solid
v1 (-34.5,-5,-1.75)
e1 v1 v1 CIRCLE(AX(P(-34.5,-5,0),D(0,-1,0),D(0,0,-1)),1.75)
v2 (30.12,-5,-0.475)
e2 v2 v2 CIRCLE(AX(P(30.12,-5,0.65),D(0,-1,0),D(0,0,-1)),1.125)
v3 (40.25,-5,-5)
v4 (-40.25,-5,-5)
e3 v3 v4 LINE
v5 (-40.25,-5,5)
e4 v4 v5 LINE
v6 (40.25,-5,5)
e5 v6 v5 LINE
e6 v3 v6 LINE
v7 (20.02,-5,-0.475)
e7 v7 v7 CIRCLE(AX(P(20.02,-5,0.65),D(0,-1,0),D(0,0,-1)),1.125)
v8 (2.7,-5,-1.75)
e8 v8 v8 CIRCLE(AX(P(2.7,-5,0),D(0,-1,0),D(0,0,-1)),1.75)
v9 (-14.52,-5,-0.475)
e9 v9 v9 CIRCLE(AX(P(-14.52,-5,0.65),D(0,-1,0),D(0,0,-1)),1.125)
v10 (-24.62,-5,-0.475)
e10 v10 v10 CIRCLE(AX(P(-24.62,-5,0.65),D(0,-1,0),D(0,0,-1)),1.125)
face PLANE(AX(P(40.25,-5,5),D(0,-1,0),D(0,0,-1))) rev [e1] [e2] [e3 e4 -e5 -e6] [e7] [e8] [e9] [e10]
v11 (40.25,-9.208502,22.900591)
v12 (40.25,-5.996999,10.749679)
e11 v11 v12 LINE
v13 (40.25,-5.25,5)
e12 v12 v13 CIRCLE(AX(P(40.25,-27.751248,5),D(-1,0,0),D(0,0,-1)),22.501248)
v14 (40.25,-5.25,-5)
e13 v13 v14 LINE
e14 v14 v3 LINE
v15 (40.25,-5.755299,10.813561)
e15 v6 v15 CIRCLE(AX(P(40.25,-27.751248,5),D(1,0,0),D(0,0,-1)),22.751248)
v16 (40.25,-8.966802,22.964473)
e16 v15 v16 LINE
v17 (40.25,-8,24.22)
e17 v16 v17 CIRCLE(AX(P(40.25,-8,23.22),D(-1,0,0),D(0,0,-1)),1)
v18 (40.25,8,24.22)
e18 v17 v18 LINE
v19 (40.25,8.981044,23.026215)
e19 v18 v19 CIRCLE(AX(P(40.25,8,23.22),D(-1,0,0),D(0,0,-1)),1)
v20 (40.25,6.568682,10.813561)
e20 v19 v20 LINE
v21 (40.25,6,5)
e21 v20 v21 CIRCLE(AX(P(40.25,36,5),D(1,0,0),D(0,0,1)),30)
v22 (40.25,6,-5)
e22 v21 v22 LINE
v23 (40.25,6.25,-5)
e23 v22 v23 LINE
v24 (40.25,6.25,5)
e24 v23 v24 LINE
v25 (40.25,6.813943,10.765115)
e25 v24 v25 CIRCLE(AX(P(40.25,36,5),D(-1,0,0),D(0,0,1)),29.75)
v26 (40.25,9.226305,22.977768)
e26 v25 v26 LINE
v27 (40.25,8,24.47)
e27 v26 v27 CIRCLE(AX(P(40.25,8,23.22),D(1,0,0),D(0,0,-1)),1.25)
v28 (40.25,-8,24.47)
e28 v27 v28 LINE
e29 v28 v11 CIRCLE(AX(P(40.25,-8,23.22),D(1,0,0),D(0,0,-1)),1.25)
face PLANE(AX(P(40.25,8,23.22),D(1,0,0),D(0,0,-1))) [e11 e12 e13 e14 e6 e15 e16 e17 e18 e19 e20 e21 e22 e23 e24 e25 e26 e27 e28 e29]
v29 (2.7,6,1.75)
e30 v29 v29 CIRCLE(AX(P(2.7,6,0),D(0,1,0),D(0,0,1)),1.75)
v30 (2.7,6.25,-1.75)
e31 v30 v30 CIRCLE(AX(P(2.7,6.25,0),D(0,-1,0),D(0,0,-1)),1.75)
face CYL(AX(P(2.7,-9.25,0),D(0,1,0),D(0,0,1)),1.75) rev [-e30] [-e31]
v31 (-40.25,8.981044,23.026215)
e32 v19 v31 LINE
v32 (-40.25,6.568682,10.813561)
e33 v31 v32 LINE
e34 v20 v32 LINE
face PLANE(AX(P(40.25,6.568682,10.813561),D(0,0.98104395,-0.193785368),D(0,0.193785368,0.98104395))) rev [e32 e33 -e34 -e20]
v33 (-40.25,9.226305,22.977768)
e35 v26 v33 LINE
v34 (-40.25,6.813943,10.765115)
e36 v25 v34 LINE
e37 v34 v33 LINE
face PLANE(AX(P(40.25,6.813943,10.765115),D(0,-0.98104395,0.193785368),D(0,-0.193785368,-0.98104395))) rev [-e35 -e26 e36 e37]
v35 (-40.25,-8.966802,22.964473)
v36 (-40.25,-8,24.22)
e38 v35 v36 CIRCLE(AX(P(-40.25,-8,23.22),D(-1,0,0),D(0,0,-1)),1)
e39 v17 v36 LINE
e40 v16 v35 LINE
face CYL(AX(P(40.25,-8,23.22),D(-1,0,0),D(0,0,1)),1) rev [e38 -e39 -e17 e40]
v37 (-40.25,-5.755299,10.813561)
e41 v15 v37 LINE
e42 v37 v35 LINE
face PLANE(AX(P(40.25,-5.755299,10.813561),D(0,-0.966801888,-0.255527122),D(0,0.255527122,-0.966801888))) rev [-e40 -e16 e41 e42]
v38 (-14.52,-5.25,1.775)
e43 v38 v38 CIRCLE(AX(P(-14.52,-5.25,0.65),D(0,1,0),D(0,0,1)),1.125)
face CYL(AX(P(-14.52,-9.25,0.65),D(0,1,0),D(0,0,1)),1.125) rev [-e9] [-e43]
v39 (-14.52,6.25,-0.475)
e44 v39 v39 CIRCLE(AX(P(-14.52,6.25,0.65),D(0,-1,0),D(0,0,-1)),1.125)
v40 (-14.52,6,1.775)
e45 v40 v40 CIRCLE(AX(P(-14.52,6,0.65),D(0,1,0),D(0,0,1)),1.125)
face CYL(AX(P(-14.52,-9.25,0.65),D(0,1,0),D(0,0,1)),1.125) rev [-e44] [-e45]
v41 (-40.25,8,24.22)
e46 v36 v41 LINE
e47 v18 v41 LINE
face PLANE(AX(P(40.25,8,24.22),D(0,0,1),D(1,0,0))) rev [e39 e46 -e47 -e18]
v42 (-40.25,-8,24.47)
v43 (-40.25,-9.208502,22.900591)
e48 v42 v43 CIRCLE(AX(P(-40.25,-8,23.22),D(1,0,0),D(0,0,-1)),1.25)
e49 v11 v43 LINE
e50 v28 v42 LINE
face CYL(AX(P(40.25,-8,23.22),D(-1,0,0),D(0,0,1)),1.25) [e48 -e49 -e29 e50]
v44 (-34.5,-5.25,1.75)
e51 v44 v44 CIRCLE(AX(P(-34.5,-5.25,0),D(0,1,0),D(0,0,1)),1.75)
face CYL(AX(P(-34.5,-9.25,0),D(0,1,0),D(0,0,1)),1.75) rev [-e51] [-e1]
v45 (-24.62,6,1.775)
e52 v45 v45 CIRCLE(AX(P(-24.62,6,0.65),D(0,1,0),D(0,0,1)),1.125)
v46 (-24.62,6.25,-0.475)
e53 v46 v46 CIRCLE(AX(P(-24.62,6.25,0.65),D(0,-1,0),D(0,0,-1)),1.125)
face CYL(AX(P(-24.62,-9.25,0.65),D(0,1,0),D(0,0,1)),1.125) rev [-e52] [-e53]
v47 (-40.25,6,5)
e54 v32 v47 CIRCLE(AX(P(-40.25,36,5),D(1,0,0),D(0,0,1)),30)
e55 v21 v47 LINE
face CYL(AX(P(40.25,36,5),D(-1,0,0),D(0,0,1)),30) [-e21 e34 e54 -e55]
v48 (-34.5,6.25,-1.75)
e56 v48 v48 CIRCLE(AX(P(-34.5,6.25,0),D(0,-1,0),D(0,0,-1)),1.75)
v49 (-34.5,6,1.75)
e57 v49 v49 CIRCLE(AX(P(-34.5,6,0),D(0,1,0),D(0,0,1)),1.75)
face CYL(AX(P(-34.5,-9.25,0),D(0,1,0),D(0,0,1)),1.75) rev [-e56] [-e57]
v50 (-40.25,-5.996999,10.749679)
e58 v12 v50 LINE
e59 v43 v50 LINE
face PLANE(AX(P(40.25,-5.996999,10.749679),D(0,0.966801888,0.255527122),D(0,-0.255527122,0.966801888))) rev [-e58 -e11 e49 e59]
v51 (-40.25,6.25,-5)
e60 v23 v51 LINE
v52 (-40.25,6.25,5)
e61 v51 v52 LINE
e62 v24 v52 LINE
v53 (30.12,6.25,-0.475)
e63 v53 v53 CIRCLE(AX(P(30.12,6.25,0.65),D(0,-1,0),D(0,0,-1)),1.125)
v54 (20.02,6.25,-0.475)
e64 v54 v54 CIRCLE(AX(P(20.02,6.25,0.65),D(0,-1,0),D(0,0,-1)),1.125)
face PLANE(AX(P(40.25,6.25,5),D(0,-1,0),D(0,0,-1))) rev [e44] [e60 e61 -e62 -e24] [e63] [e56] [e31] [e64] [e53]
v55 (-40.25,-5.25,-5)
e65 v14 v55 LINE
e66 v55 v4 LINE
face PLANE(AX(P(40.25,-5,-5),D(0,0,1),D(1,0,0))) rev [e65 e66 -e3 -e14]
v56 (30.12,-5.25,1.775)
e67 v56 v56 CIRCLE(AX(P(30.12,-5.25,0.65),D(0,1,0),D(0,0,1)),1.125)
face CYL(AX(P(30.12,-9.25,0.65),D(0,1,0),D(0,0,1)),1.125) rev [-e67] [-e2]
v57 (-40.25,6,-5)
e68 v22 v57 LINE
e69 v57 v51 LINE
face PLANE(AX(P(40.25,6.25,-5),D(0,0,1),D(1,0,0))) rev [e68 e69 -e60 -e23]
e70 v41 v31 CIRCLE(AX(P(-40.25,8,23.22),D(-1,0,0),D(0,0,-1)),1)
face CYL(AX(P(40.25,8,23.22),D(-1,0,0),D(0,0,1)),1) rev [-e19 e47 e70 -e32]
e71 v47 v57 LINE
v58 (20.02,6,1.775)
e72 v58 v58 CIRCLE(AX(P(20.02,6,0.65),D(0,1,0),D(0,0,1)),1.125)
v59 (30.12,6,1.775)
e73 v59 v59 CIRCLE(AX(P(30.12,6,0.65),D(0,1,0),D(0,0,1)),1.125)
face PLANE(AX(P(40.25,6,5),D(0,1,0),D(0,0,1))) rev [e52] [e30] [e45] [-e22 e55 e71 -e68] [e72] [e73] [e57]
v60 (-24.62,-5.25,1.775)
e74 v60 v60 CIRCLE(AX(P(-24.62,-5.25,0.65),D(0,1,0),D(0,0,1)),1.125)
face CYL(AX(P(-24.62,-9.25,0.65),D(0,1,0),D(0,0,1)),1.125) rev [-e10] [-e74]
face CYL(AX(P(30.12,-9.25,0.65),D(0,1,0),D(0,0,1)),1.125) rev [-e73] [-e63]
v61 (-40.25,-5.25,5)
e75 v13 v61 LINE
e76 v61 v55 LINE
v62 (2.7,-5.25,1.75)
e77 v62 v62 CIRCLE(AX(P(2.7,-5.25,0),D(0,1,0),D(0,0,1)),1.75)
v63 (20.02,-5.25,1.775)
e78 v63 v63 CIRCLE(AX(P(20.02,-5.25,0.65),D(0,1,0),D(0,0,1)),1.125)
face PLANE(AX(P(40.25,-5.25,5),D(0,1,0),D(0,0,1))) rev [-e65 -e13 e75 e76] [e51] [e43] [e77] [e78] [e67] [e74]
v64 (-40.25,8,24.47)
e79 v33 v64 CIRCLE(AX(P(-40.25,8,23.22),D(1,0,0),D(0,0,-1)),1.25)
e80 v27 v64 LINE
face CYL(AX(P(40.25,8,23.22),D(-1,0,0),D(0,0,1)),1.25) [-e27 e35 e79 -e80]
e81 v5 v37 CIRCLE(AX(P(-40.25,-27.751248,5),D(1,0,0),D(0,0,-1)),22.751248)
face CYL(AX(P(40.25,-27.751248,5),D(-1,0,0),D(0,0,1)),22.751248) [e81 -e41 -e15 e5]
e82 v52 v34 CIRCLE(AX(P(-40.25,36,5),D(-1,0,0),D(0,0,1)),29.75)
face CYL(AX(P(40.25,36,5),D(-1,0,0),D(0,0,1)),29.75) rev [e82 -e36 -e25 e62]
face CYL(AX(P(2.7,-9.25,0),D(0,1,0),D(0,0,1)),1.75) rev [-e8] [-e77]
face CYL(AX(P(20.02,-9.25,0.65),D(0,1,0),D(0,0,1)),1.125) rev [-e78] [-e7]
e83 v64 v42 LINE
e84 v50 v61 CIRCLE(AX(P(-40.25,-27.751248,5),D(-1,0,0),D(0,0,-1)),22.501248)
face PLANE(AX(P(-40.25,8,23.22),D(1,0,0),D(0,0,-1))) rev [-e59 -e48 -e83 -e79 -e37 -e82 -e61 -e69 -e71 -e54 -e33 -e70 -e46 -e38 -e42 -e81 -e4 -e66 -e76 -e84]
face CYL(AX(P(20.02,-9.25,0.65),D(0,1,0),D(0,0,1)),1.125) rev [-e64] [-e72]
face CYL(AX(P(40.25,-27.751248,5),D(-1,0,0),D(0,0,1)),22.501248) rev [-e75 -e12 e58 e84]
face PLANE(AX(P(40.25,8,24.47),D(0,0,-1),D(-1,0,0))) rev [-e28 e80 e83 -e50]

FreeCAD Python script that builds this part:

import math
import FreeCAD as App
import Part
import Sketcher
Q = App.Units.Quantity

doc = App.newDocument("Part")
body = doc.addObject("PartDesign::Body", "Body")

sketch1 = body.newObject("Sketcher::SketchObject", "Sketch")
sketch1.AttachmentSupport = (doc.getObject("YZ_Plane"), [""])
sketch1.MapMode = "FlatFace"
sketch1.addGeometry(Part.LineSegment(App.Vector(-8, 24.22, 0), App.Vector(8, 24.22, 0)), False)
sketch1.addGeometry(Part.ArcOfCircle(Part.Circle(App.Vector(8, 23.22, 0), App.Vector(0, 0, 1), 1), math.radians(-11), math.radians(90)), False)
sketch1.addGeometry(Part.LineSegment(App.Vector(8.98, 23.03, 0), App.Vector(6.57, 10.81, 0)), False)
sketch1.addGeometry(Part.ArcOfCircle(Part.Circle(App.Vector(36, 5, 0), App.Vector(0, 0, 1), 30), math.radians(168.83), math.radians(180)), False)
sketch1.addGeometry(Part.LineSegment(App.Vector(6, 5, 0), App.Vector(6, -5, 0)), False)
sketch1.addGeometry(Part.LineSegment(App.Vector(6, -5, 0), App.Vector(6.25, -5, 0)), False)
sketch1.addGeometry(Part.LineSegment(App.Vector(6.25, -5, 0), App.Vector(6.25, 5, 0)), False)
sketch1.addGeometry(Part.ArcOfCircle(Part.Circle(App.Vector(36, 5, 0), App.Vector(0, 0, 1), 29.75), math.radians(168.83), math.radians(180)), False)
sketch1.addGeometry(Part.LineSegment(App.Vector(6.81, 10.77, 0), App.Vector(9.23, 22.98, 0)), False)
sketch1.addGeometry(Part.ArcOfCircle(Part.Circle(App.Vector(8, 23.22, 0), App.Vector(0, 0, 1), 1.25), math.radians(-11), math.radians(90)), False)
sketch1.addGeometry(Part.LineSegment(App.Vector(8, 24.47, 0), App.Vector(-8, 24.47, 0)), False)
sketch1.addGeometry(Part.ArcOfCircle(Part.Circle(App.Vector(-8, 23.22, 0), App.Vector(0, 0, 1), 1.25), math.radians(90), math.radians(195)), False)
sketch1.addGeometry(Part.LineSegment(App.Vector(-9.21, 22.9, 0), App.Vector(-6, 10.75, 0)), False)
sketch1.addGeometry(Part.ArcOfCircle(Part.Circle(App.Vector(-27.75, 5, 0), App.Vector(0, 0, 1), 22.5), math.radians(0), math.radians(14.8)), False)
sketch1.addGeometry(Part.LineSegment(App.Vector(-5.25, 5, 0), App.Vector(-5.25, -5, 0)), False)
sketch1.addGeometry(Part.LineSegment(App.Vector(-5.25, -5, 0), App.Vector(-5, -5, 0)), False)
sketch1.addGeometry(Part.LineSegment(App.Vector(-5, -5, 0), App.Vector(-5, 5, 0)), False)
sketch1.addGeometry(Part.ArcOfCircle(Part.Circle(App.Vector(-27.75, 5, 0), App.Vector(0, 0, 1), 22.75), math.radians(0), math.radians(14.8)), False)
sketch1.addGeometry(Part.LineSegment(App.Vector(-5.76, 10.81, 0), App.Vector(-8.97, 22.96, 0)), False)
sketch1.addGeometry(Part.ArcOfCircle(Part.Circle(App.Vector(-8, 23.22, 0), App.Vector(0, 0, 1), 1), math.radians(90), math.radians(195)), False)
sketch1.addConstraint(Sketcher.Constraint("Tangent", 0, 2, 1, 2))
sketch1.addConstraint(Sketcher.Constraint("Tangent", 1, 1, 2, 1))
sketch1.addConstraint(Sketcher.Constraint("Tangent", 2, 2, 3, 1))
sketch1.addConstraint(Sketcher.Constraint("Tangent", 3, 2, 4, 1))
sketch1.addConstraint(Sketcher.Constraint("Coincident", 4, 2, 5, 1))
sketch1.addConstraint(Sketcher.Constraint("Coincident", 5, 2, 6, 1))
sketch1.addConstraint(Sketcher.Constraint("Tangent", 6, 2, 7, 2))
sketch1.addConstraint(Sketcher.Constraint("Tangent", 7, 1, 8, 1))
sketch1.addConstraint(Sketcher.Constraint("Tangent", 8, 2, 9, 1))
sketch1.addConstraint(Sketcher.Constraint("Tangent", 9, 2, 10, 1))
sketch1.addConstraint(Sketcher.Constraint("Tangent", 10, 2, 11, 1))
sketch1.addConstraint(Sketcher.Constraint("Tangent", 11, 2, 12, 1))
sketch1.addConstraint(Sketcher.Constraint("Tangent", 12, 2, 13, 2))
sketch1.addConstraint(Sketcher.Constraint("Tangent", 13, 1, 14, 1))
sketch1.addConstraint(Sketcher.Constraint("Coincident", 14, 2, 15, 1))
sketch1.addConstraint(Sketcher.Constraint("Coincident", 15, 2, 16, 1))
sketch1.addConstraint(Sketcher.Constraint("Tangent", 16, 2, 17, 1))
sketch1.addConstraint(Sketcher.Constraint("Tangent", 17, 2, 18, 1))
sketch1.addConstraint(Sketcher.Constraint("Tangent", 18, 2, 19, 2))
sketch1.addConstraint(Sketcher.Constraint("Tangent", 19, 1, 0, 1))
sketch1.addConstraint(Sketcher.Constraint("Horizontal", 0))
sketch1.addConstraint(Sketcher.Constraint("Vertical", 4))
sketch1.addConstraint(Sketcher.Constraint("Horizontal", 5))
sketch1.addConstraint(Sketcher.Constraint("Vertical", 6))
sketch1.addConstraint(Sketcher.Constraint("Horizontal", 10))
sketch1.addConstraint(Sketcher.Constraint("Vertical", 14))
sketch1.addConstraint(Sketcher.Constraint("Horizontal", 15))
sketch1.addConstraint(Sketcher.Constraint("Vertical", 16))
sketch1.addConstraint(Sketcher.Constraint("Coincident", 7, 3, 3, 3))
sketch1.addConstraint(Sketcher.Constraint("Coincident", 9, 3, 1, 3))
sketch1.addConstraint(Sketcher.Constraint("Coincident", 17, 3, 13, 3))
sketch1.addConstraint(Sketcher.Constraint("Coincident", 19, 3, 11, 3))
sketch1.addConstraint(Sketcher.Constraint("Equal", 9, 11))
sketch1.addConstraint(Sketcher.Constraint("Parallel", 2, 8))
sketch1.addConstraint(Sketcher.Constraint("Parallel", 12, 18))
sketch1.addConstraint(Sketcher.Constraint("Horizontal", 7, 3, 13, 3))
sketch1.addConstraint(Sketcher.Constraint("Horizontal", 5, 2, 14, 2))
sketch1.addConstraint(Sketcher.Constraint("Horizontal", 2, 2, 17, 2))
sketch1.addConstraint(Sketcher.Constraint("Radius", 1, Q("1 mm")))
sketch1.addConstraint(Sketcher.Constraint("Radius", 3, Q("30 mm")))
sketch1.addConstraint(Sketcher.Constraint("DistanceX", 0, 1, 0, 2, Q("16 mm")))
sketch1.addConstraint(Sketcher.Constraint("DistanceY", 4, 2, 4, 1, Q("10 mm")))
sketch1.addConstraint(Sketcher.Constraint("Radius", 7, Q("29.75 mm")))
sketch1.addConstraint(Sketcher.Constraint("DistanceX", -1, 1, 1, 3, Q("8 mm")))
sketch1.addConstraint(Sketcher.Constraint("DistanceX", -1, 1, 3, 3, Q("36 mm")))
sketch1.addConstraint(Sketcher.Constraint("DistanceY", -1, 1, 3, 3, Q("5 mm")))
sketch1.addConstraint(Sketcher.Constraint("DistanceX", 15, 2, -1, 1, Q("5 mm")))
sketch1.addConstraint(Sketcher.Constraint("DistanceY", -1, 1, 1, 3, Q("23.22 mm")))
pad1 = body.newObject("PartDesign::Pad", "Pad")
pad1.Profile = sketch1
pad1.Length = 80.5
pad1.Midplane = True

sketch2 = body.newObject("Sketcher::SketchObject", "Sketch001")
sketch2.AttachmentSupport = (doc.getObject("XZ_Plane"), [""])
sketch2.MapMode = "FlatFace"
sketch2.addGeometry(Part.Circle(App.Vector(-34.5, 0, 0), App.Vector(0, 0, 1), 1.8), False)
sketch2.addGeometry(Part.Circle(App.Vector(-24.6, 0.7, 0), App.Vector(0, 0, 1), 1.1), False)
sketch2.addGeometry(Part.Circle(App.Vector(-14.5, 0.7, 0), App.Vector(0, 0, 1), 1.1), False)
sketch2.addGeometry(Part.Circle(App.Vector(2.7, 0, 0), App.Vector(0, 0, 1), 1.8), False)
sketch2.addGeometry(Part.Circle(App.Vector(20, 0.7, 0), App.Vector(0, 0, 1), 1.1), False)
sketch2.addGeometry(Part.Circle(App.Vector(30.1, 0.7, 0), App.Vector(0, 0, 1), 1.1), False)
sketch2.addConstraint(Sketcher.Constraint("Equal", 1, 2))
sketch2.addConstraint(Sketcher.Constraint("Equal", 0, 3))
sketch2.addConstraint(Sketcher.Constraint("Equal", 2, 4))
sketch2.addConstraint(Sketcher.Constraint("Equal", 4, 5))
sketch2.addConstraint(Sketcher.Constraint("PointOnObject", 0, 3, -1))
sketch2.addConstraint(Sketcher.Constraint("PointOnObject", 3, 3, -1))
sketch2.addConstraint(Sketcher.Constraint("Horizontal", 1, 3, 2, 3))
sketch2.addConstraint(Sketcher.Constraint("Horizontal", 2, 3, 4, 3))
sketch2.addConstraint(Sketcher.Constraint("Horizontal", 4, 3, 5, 3))
sketch2.addConstraint(Sketcher.Constraint("Diameter", 0, Q("3.5 mm")))
sketch2.addConstraint(Sketcher.Constraint("Diameter", 1, Q("2.25 mm")))
sketch2.addConstraint(Sketcher.Constraint("DistanceX", 0, 3, -1, 1, Q("34.5 mm")))
sketch2.addConstraint(Sketcher.Constraint("DistanceX", -1, 1, 3, 3, Q("2.7 mm")))
sketch2.addConstraint(Sketcher.Constraint("DistanceX", 1, 3, 2, 3, Q("10.1 mm")))
sketch2.addConstraint(Sketcher.Constraint("DistanceX", 4, 3, 5, 3, Q("10.1 mm")))
sketch2.addConstraint(Sketcher.Constraint("DistanceX", 1, 3, -1, 1, Q("24.62 mm")))
sketch2.addConstraint(Sketcher.Constraint("DistanceY", -1, 1, 1, 3, Q("0.65 mm")))
sketch2.addConstraint(Sketcher.Constraint("DistanceX", -1, 1, 4, 3, Q("20.02 mm")))
pocket1 = body.newObject("PartDesign::Pocket", "Pocket")
pocket1.Profile = sketch2
pocket1.Type = "ThroughAll"
pocket1.Midplane = True

doc.recompute()
